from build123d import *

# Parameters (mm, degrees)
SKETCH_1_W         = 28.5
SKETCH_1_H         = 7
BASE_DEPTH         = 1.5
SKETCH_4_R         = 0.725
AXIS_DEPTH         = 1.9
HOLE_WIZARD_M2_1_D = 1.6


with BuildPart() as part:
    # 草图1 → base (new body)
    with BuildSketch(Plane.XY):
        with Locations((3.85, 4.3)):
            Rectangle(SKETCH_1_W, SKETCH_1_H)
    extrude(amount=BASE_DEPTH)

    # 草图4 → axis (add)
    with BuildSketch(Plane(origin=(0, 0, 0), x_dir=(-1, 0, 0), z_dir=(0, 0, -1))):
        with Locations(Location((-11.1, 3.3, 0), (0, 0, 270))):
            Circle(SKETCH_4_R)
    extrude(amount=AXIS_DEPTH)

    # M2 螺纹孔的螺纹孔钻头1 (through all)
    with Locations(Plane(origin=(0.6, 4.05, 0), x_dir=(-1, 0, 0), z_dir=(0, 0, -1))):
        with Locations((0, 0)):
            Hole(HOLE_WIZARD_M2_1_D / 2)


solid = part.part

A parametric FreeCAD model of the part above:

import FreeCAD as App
import Part
import Sketcher

doc = App.newDocument("Part")
body = doc.addObject("PartDesign::Body", "Body")

sketch1 = doc.addObject("Sketcher::SketchObject", "Sketch")
body.addObject(sketch1)
sketch1.AttachmentSupport = (doc.XY_Plane, [""])
sketch1.MapMode = "FlatFace"
sketch1.addGeometry(Part.LineSegment(App.Vector(-10, 8, 0), App.Vector(-10, 1, 0)), False)
sketch1.addGeometry(Part.LineSegment(App.Vector(-10, 1, 0), App.Vector(18, 1, 0)), False)
sketch1.addGeometry(Part.LineSegment(App.Vector(18, 1, 0), App.Vector(18, 8, 0)), False)
sketch1.addGeometry(Part.LineSegment(App.Vector(18, 8, 0), App.Vector(-10, 8, 0)), False)
sketch1.addConstraint(Sketcher.Constraint("Coincident", 0, 2, 1, 1))
sketch1.addConstraint(Sketcher.Constraint("Coincident", 1, 2, 2, 1))
sketch1.addConstraint(Sketcher.Constraint("Coincident", 2, 2, 3, 1))
sketch1.addConstraint(Sketcher.Constraint("Coincident", 3, 2, 0, 1))
sketch1.addConstraint(Sketcher.Constraint("Vertical", 0))
sketch1.addConstraint(Sketcher.Constraint("Horizontal", 1))
sketch1.addConstraint(Sketcher.Constraint("Vertical", 2))
sketch1.addConstraint(Sketcher.Constraint("Horizontal", 3))
sketch1.addConstraint(Sketcher.Constraint("DistanceY", 0, 2, 0, 1, 7.0))
sketch1.addConstraint(Sketcher.Constraint("DistanceX", 1, 1, 1, 2, 28.5))
sketch1.addConstraint(Sketcher.Constraint("DistanceX", 0, 2, -1, 1, 10.4))
sketch1.addConstraint(Sketcher.Constraint("DistanceY", -1, 1, 0, 2, 0.8))
pad1 = doc.addObject("PartDesign::Pad", "Pad")
body.addObject(pad1)
pad1.Profile = sketch1
pad1.Length = 1.5

sketch2 = doc.addObject("Sketcher::SketchObject", "Sketch001")
body.addObject(sketch2)
sketch2.AttachmentSupport = (doc.XY_Plane, [""])
sketch2.MapMode = "FlatFace"
sketch2.addGeometry(Part.Circle(App.Vector(11.1, 3.3, 0), App.Vector(0, 0, 1), 0.7), False)
sketch2.addConstraint(Sketcher.Constraint("Diameter", 0, 1.45))
sketch2.addConstraint(Sketcher.Constraint("DistanceX", -1, 1, 0, 3, 11.1))
sketch2.addConstraint(Sketcher.Constraint("DistanceY", -1, 1, 0, 3, 3.3))
pad2 = doc.addObject("PartDesign::Pad", "Pad001")
body.addObject(pad2)
pad2.Profile = sketch2
pad2.Length = 1.9
pad2.Reversed = True

sketch3 = doc.addObject("Sketcher::SketchObject", "Sketch002")
body.addObject(sketch3)
sketch3.AttachmentSupport = (doc.XY_Plane, [""])
sketch3.MapMode = "FlatFace"
sketch3.addGeometry(Part.Circle(App.Vector(0.6, 4, 0), App.Vector(0, 0, 1), 0.8), False)
sketch3.addConstraint(Sketcher.Constraint("Diameter", 0, 1.6))
sketch3.addConstraint(Sketcher.Constraint("DistanceX", -1, 1, 0, 3, 0.6))
sketch3.addConstraint(Sketcher.Constraint("DistanceY", -1, 1, 0, 3, 4.05))
doc.recompute()
hole = doc.addObject("PartDesign::Hole", "Hole")
body.addObject(hole)
hole.Profile = sketch3
hole.ThreadType = "None"
hole.Diameter = 1.6
hole.DepthType = "ThroughAll"
hole.Reversed = True

doc.recompute()
